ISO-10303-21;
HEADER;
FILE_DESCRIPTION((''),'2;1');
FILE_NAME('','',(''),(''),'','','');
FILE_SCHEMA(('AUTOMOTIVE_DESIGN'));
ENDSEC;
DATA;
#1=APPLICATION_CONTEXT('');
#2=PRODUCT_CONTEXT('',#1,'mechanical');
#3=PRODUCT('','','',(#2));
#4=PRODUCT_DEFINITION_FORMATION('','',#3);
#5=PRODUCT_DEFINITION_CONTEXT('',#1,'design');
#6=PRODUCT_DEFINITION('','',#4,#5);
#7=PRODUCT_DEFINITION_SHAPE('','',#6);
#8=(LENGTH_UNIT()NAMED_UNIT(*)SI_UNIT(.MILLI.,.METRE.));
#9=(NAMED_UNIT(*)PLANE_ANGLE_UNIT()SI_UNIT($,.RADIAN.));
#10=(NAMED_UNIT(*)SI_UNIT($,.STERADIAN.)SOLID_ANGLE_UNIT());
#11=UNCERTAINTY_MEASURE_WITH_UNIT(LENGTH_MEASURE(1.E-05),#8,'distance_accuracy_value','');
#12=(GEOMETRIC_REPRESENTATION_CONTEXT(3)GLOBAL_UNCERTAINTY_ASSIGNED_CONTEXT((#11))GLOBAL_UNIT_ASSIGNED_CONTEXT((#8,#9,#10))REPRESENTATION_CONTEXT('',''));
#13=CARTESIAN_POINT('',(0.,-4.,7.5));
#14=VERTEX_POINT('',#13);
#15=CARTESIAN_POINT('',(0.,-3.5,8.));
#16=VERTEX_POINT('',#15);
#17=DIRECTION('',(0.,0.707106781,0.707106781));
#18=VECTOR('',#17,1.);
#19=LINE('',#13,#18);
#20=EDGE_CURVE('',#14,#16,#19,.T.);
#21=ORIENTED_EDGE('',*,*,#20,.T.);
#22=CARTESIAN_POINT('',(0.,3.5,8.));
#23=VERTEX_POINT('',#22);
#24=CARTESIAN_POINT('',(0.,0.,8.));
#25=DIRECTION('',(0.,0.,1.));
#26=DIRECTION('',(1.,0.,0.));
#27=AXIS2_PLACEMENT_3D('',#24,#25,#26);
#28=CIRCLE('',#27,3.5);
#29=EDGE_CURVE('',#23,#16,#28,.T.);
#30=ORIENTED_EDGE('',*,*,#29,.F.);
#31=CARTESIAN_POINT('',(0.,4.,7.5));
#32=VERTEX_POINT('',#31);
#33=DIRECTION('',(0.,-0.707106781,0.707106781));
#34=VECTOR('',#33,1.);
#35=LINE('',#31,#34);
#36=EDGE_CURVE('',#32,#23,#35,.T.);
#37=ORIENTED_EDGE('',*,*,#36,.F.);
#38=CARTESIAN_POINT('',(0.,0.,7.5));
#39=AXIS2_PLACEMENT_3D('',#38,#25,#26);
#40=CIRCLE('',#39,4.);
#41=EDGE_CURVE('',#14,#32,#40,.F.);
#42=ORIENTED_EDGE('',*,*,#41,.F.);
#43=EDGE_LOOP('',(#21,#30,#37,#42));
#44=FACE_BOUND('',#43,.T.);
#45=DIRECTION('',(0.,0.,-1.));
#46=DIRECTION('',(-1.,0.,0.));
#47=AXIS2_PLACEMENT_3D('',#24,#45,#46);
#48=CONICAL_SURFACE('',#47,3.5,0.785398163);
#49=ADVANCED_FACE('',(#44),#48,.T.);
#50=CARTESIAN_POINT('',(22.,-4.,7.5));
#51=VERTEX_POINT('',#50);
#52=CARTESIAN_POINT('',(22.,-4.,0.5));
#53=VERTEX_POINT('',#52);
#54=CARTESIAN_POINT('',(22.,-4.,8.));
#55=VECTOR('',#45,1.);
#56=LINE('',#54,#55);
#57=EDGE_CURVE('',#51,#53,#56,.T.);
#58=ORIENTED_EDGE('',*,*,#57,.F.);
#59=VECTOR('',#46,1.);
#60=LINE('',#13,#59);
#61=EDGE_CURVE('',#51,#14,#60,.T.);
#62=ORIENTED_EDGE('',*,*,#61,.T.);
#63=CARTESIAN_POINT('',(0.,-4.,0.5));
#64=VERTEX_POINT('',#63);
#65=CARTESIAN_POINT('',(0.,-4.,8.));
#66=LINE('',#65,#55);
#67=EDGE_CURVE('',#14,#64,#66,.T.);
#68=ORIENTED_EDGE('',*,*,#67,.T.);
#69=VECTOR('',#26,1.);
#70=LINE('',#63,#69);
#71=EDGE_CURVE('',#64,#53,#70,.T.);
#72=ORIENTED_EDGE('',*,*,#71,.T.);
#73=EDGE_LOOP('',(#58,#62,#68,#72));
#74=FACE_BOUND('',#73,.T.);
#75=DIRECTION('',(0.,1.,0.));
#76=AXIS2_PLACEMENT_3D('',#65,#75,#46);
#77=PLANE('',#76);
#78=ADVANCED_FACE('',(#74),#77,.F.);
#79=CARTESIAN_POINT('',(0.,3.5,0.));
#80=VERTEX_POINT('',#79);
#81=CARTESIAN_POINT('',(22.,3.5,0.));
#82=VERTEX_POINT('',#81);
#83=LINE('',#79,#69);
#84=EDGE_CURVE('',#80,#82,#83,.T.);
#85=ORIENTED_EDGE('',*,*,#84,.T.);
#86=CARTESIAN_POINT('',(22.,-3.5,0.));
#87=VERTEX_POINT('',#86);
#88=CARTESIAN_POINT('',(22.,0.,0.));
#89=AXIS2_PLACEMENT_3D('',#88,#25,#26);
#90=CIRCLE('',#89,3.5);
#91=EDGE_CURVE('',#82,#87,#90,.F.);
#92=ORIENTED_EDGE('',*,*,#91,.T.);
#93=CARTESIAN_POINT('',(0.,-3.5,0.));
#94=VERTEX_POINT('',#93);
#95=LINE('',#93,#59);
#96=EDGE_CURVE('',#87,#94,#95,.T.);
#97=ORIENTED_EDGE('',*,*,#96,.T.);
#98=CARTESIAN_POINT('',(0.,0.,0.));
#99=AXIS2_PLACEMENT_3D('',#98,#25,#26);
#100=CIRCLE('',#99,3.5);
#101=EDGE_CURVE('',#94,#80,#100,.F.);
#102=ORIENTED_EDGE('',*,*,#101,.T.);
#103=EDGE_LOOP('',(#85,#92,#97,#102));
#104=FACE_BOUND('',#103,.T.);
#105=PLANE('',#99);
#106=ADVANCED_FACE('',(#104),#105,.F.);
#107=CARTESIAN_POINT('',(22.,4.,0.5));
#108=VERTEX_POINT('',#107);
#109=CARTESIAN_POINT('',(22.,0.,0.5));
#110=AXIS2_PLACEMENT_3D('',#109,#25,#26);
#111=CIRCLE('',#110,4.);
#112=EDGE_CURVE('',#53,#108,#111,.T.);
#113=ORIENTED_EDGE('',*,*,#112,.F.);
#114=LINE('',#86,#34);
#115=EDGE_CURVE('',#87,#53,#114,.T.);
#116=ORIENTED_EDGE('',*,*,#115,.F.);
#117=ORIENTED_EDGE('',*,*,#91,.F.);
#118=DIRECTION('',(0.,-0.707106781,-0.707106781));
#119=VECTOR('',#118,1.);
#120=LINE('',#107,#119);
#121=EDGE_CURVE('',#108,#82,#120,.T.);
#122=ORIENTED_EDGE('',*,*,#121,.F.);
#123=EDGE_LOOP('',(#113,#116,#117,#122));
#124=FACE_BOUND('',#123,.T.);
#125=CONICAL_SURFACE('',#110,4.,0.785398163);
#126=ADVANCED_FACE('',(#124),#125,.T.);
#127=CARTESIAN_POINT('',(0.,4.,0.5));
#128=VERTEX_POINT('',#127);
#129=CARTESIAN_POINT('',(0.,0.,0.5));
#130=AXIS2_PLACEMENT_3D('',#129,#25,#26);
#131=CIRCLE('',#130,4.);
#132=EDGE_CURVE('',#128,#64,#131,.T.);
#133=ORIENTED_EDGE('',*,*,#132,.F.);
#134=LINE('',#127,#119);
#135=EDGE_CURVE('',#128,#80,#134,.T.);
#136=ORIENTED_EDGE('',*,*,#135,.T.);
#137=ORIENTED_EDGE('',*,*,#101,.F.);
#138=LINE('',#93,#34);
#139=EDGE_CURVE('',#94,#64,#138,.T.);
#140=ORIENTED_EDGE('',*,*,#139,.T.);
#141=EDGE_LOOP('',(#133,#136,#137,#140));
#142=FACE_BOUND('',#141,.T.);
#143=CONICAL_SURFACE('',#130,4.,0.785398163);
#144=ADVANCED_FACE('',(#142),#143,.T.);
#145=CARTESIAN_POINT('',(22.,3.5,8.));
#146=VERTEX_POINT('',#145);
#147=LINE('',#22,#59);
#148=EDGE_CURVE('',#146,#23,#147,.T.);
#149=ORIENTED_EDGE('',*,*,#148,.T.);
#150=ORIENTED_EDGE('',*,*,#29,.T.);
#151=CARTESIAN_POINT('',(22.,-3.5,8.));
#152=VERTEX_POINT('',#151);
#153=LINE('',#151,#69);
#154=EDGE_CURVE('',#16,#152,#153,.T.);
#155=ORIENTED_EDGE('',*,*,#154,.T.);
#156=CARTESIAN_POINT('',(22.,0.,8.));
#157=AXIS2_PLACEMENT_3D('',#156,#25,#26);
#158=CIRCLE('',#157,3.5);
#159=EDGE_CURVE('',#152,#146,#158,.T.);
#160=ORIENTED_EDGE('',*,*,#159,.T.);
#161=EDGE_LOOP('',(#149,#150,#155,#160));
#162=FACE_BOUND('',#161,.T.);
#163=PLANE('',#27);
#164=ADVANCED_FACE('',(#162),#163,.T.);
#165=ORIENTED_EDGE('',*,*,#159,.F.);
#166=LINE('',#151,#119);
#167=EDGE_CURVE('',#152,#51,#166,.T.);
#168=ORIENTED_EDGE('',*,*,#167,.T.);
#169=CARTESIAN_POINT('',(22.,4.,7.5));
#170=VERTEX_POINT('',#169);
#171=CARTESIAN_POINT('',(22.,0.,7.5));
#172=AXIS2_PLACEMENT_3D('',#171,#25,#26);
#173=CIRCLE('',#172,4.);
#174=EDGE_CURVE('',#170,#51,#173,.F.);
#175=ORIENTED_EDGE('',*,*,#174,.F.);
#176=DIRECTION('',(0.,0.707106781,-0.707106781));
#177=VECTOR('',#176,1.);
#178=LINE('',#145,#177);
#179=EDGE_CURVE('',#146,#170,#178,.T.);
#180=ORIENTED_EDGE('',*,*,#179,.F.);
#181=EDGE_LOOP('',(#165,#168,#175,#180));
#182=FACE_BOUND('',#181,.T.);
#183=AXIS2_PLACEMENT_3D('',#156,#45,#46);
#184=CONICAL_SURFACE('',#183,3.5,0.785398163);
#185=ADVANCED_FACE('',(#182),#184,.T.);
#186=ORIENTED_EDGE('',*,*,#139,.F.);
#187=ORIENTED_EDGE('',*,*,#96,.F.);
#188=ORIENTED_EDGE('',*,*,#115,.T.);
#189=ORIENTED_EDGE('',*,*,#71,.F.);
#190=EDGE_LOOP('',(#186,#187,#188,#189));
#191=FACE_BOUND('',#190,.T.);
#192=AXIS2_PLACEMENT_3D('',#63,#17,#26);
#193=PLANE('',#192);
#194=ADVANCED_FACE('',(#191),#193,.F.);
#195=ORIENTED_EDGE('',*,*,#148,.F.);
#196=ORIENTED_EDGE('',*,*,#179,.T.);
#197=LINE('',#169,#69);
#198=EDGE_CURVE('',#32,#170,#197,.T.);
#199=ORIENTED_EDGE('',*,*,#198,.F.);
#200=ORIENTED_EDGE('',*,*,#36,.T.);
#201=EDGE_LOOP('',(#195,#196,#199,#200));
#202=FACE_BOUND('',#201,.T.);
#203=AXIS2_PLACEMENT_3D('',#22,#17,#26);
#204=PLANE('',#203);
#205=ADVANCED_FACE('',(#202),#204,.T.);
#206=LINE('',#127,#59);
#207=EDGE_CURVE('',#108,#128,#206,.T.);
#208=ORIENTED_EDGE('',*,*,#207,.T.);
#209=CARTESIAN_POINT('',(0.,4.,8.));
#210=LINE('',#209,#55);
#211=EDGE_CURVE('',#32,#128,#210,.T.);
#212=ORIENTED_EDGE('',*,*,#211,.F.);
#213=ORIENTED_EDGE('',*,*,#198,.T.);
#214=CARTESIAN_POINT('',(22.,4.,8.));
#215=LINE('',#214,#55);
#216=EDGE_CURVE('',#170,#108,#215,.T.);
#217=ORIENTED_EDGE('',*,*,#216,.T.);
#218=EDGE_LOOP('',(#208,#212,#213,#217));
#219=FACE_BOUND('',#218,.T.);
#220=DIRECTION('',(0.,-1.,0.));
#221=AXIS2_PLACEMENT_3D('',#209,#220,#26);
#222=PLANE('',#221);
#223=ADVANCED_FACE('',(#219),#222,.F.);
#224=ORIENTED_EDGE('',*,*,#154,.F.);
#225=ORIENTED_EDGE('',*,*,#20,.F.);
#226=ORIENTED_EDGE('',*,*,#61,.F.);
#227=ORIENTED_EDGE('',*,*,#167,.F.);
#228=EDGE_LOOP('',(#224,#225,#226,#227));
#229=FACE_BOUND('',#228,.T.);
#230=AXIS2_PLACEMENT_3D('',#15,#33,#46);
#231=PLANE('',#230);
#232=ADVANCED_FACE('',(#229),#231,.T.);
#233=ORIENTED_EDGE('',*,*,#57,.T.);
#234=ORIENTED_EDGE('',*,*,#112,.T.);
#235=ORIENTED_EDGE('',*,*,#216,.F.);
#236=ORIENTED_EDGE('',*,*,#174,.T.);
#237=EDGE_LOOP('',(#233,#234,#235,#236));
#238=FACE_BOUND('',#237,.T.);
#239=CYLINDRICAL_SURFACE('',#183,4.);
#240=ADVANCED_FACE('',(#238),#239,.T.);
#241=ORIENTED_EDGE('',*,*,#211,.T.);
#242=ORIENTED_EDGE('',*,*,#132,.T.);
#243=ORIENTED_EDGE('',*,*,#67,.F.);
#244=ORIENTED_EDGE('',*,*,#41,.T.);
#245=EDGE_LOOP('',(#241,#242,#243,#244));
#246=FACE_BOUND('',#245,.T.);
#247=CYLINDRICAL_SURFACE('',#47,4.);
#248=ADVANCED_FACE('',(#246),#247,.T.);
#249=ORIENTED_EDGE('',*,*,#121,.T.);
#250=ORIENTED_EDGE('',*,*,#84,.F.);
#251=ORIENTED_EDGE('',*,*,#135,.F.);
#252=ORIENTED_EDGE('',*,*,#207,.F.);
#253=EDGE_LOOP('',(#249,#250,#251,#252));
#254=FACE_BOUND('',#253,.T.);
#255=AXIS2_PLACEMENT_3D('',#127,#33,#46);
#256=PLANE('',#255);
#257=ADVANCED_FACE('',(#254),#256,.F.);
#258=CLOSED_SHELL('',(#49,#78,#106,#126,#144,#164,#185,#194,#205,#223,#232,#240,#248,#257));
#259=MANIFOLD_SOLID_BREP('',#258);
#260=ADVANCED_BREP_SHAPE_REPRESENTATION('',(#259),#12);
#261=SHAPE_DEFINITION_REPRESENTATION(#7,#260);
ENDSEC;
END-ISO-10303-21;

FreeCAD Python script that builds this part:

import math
import FreeCAD as App
import Part
import Sketcher

V = App.Vector


def edges_at(feature, points):
    """Names of the edges that pass closest to the given points."""
    edges = feature.Shape.Edges
    near = lambda p: min(range(len(edges)), key=lambda i: edges[i].distToShape(Part.Vertex(*p))[0])
    return sorted({f"Edge{near(p) + 1}" for p in points})

doc = App.newDocument("Part")
body = doc.addObject("PartDesign::Body", "Body")

# Sketch on XY plane
sketch1 = doc.addObject("Sketcher::SketchObject", "Sketch")
body.addObject(sketch1)
sketch1.AttachmentSupport = (doc.XY_Plane, [""])
sketch1.MapMode = "FlatFace"
sketch1.addGeometry(Part.LineSegment(V(22, 4, 0), V(0, 4, 0)), False)
sketch1.addGeometry(Part.ArcOfCircle(Part.Circle(V(0, 0, 0), V(0, 0, 1), 4), math.radians(90), math.radians(270)), False)
sketch1.addGeometry(Part.LineSegment(V(0, -4, 0), V(22, -4, 0)), False)
sketch1.addGeometry(Part.ArcOfCircle(Part.Circle(V(22, 0, 0), V(0, 0, 1), 4), math.radians(-90), math.radians(90)), False)
sketch1.addConstraint(Sketcher.Constraint("Tangent", 0, 2, 1, 1))
sketch1.addConstraint(Sketcher.Constraint("Tangent", 1, 2, 2, 1))
sketch1.addConstraint(Sketcher.Constraint("Tangent", 2, 2, 3, 1))
sketch1.addConstraint(Sketcher.Constraint("Tangent", 3, 2, 0, 1))
sketch1.addConstraint(Sketcher.Constraint("Horizontal", 0))
sketch1.addConstraint(Sketcher.Constraint("Horizontal", 2))
sketch1.addConstraint(Sketcher.Constraint("Coincident", 1, 3, -1, 1))
sketch1.addConstraint(Sketcher.Constraint("Radius", 1, 4.0))
sketch1.addConstraint(Sketcher.Constraint("DistanceX", 0, 2, 0, 1, 22.0))
pad1 = doc.addObject("PartDesign::Pad", "Pad")
body.addObject(pad1)
pad1.Profile = sketch1
pad1.Length = 8
doc.recompute()

chamfer = doc.addObject("PartDesign::Chamfer", "Chamfer")
body.addObject(chamfer)
chamfer.Base = (pad1, edges_at(pad1, [
    (26, 0, 8),
    (11, 4, 8),
    (-4, 0, 8),
    (11, 4, 0),
    (26, 0, 0),
    (11, -4, 0),
    (-4, 0, 0),
    (11, -4, 8),
]))
chamfer.Size = 0.5

doc.recompute()
